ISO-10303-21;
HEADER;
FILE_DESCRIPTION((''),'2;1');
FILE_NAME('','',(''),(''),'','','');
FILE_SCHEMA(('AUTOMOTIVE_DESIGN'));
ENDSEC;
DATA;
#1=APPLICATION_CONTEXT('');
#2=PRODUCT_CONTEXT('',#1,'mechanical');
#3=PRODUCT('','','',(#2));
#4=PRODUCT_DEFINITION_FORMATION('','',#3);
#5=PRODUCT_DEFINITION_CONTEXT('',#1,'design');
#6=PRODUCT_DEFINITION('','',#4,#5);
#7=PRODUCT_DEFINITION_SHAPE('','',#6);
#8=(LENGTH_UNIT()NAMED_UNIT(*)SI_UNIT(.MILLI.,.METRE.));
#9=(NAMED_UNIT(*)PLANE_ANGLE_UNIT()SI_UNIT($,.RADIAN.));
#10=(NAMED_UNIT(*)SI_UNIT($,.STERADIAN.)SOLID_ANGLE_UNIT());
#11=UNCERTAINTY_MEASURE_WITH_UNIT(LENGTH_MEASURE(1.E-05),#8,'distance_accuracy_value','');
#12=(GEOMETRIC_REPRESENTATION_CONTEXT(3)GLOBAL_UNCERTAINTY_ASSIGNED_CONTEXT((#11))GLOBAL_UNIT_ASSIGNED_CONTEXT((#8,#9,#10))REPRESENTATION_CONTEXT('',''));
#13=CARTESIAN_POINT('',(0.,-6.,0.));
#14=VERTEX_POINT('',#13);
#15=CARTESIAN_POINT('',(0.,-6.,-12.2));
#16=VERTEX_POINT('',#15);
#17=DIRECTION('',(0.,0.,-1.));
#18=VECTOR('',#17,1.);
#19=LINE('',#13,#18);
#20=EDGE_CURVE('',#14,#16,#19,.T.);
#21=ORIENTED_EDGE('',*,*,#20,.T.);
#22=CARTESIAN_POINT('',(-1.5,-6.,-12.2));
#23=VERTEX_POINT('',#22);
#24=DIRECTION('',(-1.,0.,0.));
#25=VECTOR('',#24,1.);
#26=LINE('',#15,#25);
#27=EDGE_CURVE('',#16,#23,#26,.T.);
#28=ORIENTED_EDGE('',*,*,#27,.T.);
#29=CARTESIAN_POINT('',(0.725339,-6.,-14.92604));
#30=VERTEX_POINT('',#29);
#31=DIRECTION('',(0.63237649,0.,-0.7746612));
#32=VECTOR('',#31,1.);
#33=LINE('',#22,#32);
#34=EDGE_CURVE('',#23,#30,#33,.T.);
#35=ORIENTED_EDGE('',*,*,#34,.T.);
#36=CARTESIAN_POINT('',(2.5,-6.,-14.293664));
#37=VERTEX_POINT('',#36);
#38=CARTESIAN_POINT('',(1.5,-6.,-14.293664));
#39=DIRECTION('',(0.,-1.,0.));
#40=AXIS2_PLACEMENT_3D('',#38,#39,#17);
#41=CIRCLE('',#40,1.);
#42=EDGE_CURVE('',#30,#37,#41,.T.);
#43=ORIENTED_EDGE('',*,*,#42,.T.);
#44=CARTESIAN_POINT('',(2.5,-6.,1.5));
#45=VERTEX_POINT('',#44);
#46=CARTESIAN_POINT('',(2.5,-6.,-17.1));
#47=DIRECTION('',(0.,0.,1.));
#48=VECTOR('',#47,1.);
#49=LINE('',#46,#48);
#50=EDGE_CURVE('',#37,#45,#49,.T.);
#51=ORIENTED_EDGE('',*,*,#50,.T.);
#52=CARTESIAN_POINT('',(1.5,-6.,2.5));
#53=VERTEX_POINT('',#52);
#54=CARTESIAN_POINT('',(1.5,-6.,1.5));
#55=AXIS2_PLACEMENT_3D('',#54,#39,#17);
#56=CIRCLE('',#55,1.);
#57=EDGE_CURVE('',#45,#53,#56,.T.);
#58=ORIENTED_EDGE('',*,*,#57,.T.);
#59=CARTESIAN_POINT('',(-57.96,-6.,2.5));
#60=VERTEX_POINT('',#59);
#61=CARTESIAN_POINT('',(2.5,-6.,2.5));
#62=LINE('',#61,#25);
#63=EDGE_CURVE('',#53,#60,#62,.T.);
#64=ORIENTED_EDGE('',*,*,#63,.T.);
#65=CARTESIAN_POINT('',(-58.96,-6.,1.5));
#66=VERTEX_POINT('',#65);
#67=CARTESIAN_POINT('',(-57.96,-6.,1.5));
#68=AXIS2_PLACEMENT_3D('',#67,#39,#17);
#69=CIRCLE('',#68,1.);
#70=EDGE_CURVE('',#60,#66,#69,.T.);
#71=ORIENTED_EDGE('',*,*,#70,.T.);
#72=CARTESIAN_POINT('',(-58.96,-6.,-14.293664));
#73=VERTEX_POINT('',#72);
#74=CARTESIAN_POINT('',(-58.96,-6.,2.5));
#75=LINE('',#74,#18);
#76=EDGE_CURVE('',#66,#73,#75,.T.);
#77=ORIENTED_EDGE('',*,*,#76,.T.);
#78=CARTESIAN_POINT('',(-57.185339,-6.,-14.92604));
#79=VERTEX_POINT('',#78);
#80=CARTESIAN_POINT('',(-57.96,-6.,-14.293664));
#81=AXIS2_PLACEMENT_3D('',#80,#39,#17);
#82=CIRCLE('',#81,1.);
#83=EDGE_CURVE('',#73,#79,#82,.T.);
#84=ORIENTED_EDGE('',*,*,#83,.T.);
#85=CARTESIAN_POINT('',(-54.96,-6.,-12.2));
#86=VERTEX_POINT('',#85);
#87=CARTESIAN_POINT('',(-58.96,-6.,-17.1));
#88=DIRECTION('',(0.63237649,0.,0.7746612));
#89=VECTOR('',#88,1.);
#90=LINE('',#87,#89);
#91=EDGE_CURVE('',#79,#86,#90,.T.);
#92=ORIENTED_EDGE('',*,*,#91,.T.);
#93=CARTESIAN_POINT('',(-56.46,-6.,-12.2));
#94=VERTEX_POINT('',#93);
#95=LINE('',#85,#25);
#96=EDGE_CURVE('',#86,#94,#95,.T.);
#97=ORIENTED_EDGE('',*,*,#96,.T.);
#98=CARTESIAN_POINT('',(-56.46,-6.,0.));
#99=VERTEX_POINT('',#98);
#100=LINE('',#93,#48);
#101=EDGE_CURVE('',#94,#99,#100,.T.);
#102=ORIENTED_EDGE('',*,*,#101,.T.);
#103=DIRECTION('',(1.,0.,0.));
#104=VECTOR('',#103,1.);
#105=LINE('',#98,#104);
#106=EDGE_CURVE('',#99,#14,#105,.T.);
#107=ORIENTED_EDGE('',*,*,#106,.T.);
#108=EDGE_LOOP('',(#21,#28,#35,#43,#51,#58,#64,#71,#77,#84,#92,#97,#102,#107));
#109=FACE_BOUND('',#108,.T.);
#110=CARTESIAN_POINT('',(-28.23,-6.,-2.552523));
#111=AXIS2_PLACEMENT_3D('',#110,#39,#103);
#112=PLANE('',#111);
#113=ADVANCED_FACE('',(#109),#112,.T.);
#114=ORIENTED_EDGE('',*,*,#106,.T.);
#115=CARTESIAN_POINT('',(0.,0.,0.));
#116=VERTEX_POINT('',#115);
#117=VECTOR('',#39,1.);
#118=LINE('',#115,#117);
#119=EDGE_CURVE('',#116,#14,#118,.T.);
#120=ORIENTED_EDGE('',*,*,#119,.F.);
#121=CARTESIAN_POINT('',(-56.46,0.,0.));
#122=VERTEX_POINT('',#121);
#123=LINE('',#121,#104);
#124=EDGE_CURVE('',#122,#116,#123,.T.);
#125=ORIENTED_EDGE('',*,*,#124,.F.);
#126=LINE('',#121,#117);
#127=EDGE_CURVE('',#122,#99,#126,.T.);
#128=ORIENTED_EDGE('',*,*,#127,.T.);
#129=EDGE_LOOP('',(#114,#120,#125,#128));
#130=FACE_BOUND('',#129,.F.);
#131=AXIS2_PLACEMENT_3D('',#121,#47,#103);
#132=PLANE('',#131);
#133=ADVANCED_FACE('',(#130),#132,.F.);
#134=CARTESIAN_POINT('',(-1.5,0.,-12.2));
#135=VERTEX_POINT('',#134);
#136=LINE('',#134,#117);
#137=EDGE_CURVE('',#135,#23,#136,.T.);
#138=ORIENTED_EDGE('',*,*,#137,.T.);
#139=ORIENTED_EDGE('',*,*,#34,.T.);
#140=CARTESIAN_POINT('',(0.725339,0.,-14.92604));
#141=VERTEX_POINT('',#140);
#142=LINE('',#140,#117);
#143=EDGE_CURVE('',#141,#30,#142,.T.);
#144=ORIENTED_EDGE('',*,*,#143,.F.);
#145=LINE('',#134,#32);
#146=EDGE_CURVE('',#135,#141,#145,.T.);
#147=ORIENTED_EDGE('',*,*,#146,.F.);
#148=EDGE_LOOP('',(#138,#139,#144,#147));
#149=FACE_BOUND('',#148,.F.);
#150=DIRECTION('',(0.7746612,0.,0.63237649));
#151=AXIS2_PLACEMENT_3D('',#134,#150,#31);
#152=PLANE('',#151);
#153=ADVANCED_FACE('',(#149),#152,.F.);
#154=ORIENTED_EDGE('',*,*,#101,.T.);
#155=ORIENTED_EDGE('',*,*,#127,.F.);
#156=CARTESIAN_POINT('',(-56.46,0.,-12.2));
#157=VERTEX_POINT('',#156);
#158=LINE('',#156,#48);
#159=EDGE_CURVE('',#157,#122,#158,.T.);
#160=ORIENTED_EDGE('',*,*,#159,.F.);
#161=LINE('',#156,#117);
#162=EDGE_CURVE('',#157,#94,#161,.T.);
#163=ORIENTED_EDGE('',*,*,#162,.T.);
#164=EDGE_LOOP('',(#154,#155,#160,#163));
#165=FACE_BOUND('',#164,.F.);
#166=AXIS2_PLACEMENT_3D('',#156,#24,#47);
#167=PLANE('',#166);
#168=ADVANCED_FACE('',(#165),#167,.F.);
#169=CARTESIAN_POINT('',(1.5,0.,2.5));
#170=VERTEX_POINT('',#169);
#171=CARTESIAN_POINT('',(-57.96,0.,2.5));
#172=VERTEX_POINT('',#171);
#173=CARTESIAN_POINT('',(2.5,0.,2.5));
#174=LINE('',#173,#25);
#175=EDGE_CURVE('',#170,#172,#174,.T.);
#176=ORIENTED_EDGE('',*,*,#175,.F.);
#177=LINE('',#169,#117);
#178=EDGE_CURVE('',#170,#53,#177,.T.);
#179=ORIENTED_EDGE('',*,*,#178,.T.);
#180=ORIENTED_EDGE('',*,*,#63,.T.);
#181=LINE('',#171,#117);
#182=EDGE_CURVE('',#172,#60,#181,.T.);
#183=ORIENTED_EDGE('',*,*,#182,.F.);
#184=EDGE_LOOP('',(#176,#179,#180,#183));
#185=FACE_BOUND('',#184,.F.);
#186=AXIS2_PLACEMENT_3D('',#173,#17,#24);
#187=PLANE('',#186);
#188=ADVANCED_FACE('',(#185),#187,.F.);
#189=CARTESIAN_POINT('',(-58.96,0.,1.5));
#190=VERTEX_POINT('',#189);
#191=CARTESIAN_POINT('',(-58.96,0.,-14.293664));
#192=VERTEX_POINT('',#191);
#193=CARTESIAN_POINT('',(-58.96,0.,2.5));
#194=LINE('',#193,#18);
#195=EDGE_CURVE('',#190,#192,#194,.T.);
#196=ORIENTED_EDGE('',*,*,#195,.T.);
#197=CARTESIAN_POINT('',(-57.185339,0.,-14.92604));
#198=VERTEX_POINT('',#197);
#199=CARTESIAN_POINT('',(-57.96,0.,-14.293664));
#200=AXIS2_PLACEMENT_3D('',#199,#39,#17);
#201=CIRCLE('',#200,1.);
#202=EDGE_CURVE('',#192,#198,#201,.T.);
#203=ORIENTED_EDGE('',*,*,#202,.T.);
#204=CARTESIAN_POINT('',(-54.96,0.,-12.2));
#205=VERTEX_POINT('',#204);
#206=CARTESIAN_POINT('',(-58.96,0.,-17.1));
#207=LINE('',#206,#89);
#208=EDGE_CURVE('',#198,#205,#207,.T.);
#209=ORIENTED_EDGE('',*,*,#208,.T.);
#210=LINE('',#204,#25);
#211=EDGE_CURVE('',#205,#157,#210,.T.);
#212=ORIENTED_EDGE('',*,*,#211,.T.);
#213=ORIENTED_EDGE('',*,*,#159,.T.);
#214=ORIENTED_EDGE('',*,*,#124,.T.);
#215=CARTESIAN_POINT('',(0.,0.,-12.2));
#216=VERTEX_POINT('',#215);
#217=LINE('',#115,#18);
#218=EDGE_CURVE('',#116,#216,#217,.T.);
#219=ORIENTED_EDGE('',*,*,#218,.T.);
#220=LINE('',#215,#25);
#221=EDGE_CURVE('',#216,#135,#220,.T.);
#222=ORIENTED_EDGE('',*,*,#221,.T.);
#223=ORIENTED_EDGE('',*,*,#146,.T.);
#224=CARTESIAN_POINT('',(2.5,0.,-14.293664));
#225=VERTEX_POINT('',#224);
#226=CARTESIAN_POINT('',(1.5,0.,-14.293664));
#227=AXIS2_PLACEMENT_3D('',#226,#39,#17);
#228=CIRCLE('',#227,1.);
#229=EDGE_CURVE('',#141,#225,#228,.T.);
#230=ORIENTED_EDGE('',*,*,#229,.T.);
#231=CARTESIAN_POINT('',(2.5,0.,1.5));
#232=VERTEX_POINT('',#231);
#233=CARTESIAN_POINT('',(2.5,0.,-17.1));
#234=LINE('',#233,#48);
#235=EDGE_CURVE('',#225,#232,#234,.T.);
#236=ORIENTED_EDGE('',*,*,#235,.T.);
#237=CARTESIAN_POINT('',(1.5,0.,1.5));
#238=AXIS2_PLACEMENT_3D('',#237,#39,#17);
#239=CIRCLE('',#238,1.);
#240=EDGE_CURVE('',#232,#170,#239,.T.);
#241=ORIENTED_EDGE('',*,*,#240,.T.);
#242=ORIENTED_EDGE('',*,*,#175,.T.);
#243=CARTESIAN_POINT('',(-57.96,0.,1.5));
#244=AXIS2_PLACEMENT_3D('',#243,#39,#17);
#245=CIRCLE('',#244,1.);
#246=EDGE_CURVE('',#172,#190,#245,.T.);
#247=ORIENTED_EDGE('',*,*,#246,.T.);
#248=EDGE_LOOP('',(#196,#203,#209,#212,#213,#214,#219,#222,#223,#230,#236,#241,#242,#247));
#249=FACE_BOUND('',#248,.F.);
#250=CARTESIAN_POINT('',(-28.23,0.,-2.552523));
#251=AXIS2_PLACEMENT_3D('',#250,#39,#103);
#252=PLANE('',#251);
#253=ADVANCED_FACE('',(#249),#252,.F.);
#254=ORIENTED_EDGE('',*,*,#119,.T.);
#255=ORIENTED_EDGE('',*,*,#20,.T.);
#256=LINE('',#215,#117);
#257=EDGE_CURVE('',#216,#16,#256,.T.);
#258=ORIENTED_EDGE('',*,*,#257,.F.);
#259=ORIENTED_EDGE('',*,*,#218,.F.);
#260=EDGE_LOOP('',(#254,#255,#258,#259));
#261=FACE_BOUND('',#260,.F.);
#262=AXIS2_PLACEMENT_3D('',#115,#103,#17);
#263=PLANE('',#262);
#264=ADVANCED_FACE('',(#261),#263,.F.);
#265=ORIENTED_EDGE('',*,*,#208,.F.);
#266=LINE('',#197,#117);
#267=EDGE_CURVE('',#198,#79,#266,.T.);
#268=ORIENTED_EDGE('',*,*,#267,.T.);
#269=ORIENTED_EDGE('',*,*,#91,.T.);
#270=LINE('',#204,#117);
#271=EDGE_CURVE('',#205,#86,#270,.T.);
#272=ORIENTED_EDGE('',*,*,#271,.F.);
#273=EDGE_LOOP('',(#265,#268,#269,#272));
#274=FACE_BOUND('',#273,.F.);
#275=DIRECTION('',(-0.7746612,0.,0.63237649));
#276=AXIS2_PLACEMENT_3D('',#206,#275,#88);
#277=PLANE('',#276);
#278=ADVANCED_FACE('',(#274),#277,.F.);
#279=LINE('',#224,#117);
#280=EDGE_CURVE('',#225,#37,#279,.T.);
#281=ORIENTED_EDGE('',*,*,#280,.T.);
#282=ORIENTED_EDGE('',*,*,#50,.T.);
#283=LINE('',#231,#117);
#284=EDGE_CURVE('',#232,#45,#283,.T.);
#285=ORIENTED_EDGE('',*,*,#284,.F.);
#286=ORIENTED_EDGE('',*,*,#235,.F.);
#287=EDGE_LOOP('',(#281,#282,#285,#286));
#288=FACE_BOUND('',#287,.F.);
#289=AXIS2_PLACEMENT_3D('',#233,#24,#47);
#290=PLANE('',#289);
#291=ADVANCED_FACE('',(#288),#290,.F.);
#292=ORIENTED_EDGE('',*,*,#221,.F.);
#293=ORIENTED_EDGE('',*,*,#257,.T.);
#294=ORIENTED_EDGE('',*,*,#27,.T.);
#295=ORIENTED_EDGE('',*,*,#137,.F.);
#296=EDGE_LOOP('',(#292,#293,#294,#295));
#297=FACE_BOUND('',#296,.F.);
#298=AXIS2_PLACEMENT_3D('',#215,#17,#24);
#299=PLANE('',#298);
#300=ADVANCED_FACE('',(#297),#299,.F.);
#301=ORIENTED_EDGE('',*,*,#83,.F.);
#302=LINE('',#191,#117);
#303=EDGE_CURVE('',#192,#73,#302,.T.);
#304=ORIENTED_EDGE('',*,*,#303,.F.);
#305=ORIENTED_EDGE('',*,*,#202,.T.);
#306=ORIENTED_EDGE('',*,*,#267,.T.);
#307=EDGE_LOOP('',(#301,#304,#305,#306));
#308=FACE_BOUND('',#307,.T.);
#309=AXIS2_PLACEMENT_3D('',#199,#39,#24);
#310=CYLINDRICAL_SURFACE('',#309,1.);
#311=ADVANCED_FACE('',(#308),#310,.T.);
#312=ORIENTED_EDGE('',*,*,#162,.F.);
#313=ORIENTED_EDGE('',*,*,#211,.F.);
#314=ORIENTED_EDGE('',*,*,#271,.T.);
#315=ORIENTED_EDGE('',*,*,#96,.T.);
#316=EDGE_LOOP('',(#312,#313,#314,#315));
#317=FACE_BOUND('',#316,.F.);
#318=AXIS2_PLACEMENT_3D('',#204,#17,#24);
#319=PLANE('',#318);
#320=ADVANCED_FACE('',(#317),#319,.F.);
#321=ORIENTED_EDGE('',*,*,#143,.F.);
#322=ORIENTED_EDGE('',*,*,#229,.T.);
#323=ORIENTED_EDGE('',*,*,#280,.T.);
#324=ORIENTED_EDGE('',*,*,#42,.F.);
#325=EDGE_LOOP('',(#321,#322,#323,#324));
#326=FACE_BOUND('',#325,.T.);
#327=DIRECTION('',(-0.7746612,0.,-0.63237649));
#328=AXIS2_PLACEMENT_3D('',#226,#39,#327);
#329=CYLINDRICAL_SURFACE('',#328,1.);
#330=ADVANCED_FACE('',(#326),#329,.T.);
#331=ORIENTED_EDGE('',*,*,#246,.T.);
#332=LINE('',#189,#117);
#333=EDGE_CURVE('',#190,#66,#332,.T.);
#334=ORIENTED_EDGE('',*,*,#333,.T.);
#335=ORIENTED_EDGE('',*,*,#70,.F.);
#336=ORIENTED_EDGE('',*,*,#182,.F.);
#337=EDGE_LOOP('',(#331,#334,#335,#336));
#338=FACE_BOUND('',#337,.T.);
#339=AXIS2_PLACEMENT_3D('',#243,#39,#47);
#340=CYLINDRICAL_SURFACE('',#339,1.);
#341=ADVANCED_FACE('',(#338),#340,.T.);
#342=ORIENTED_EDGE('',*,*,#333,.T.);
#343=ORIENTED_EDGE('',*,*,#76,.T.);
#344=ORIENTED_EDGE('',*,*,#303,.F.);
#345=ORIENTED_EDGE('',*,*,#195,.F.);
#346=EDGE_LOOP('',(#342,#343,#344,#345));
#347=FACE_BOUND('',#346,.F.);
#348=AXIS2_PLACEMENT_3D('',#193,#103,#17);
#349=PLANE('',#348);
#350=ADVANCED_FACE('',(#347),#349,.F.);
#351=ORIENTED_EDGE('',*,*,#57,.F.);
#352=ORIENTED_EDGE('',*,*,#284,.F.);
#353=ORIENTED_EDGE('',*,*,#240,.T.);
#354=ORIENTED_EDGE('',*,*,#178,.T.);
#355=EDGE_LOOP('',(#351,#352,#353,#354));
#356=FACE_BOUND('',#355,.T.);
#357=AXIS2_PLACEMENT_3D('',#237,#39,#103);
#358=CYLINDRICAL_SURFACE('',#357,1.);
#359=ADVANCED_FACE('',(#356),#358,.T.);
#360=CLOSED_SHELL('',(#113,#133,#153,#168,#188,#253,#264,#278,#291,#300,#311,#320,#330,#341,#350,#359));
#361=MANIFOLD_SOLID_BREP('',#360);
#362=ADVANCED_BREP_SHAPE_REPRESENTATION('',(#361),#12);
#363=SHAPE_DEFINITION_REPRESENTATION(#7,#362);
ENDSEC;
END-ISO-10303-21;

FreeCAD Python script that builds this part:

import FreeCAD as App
import Part
import Sketcher
from FreeCAD import Vector


def edges_at(feature, points):
    """Names of the edges that pass closest to the given points."""
    edges = feature.Shape.Edges
    near = lambda p: min(range(len(edges)), key=lambda i: edges[i].distToShape(Part.Vertex(*p))[0])
    return sorted({f"Edge{near(p) + 1}" for p in points})

doc = App.newDocument("Part")
body = doc.addObject("PartDesign::Body", "Body")

sketch1 = body.newObject("Sketcher::SketchObject", "Sketch")
sketch1.AttachmentSupport = (doc.getObject("XZ_Plane"), [""])
sketch1.MapMode = "FlatFace"
sketch1.addGeometry(Part.LineSegment(Vector(0, 0, 0), Vector(0, -12.2, 0)), False)
sketch1.addGeometry(Part.LineSegment(Vector(0, -12.2, 0), Vector(-1.5, -12.2, 0)), False)
sketch1.addGeometry(Part.LineSegment(Vector(-1.5, -12.2, 0), Vector(2.5, -17.1, 0)), False)
sketch1.addGeometry(Part.LineSegment(Vector(2.5, -17.1, 0), Vector(2.5, 2.5, 0)), False)
sketch1.addGeometry(Part.LineSegment(Vector(2.5, 2.5, 0), Vector(-59, 2.5, 0)), False)
sketch1.addGeometry(Part.LineSegment(Vector(-59, 2.5, 0), Vector(-59, -17.1, 0)), False)
sketch1.addGeometry(Part.LineSegment(Vector(-59, -17.1, 0), Vector(-55, -12.2, 0)), False)
sketch1.addGeometry(Part.LineSegment(Vector(-55, -12.2, 0), Vector(-56.5, -12.2, 0)), False)
sketch1.addGeometry(Part.LineSegment(Vector(-56.5, -12.2, 0), Vector(-56.5, 0, 0)), False)
sketch1.addGeometry(Part.LineSegment(Vector(-56.5, 0, 0), Vector(0, 0, 0)), False)
sketch1.addConstraint(Sketcher.Constraint("Coincident", 0, 2, 1, 1))
sketch1.addConstraint(Sketcher.Constraint("Coincident", 1, 2, 2, 1))
sketch1.addConstraint(Sketcher.Constraint("Coincident", 2, 2, 3, 1))
sketch1.addConstraint(Sketcher.Constraint("Coincident", 3, 2, 4, 1))
sketch1.addConstraint(Sketcher.Constraint("Coincident", 4, 2, 5, 1))
sketch1.addConstraint(Sketcher.Constraint("Coincident", 5, 2, 6, 1))
sketch1.addConstraint(Sketcher.Constraint("Coincident", 6, 2, 7, 1))
sketch1.addConstraint(Sketcher.Constraint("Coincident", 7, 2, 8, 1))
sketch1.addConstraint(Sketcher.Constraint("Coincident", 8, 2, 9, 1))
sketch1.addConstraint(Sketcher.Constraint("Coincident", 9, 2, 0, 1))
sketch1.addConstraint(Sketcher.Constraint("Vertical", 0))
sketch1.addConstraint(Sketcher.Constraint("Horizontal", 1))
sketch1.addConstraint(Sketcher.Constraint("Vertical", 3))
sketch1.addConstraint(Sketcher.Constraint("Horizontal", 4))
sketch1.addConstraint(Sketcher.Constraint("Vertical", 5))
sketch1.addConstraint(Sketcher.Constraint("Horizontal", 7))
sketch1.addConstraint(Sketcher.Constraint("Vertical", 8))
sketch1.addConstraint(Sketcher.Constraint("Horizontal", 9))
sketch1.addConstraint(Sketcher.Constraint("Coincident", 9, 2, -1, 1))
sketch1.addConstraint(Sketcher.Constraint("Horizontal", 2, 2, 5, 2))
sketch1.addConstraint(Sketcher.Constraint("Horizontal", 1, 2, 6, 2))
sketch1.addConstraint(Sketcher.Constraint("Equal", 1, 7))
sketch1.addConstraint(Sketcher.Constraint("Equal", 2, 6))
sketch1.addConstraint(Sketcher.Constraint("DistanceX", 1, 2, 1, 1, 1.5))
sketch1.addConstraint(Sketcher.Constraint("DistanceY", 0, 2, 0, 1, 12.2))
sketch1.addConstraint(Sketcher.Constraint("DistanceY", 3, 1, 3, 2, 19.6))
sketch1.addConstraint(Sketcher.Constraint("DistanceX", 1, 2, 2, 2, 4.0))
sketch1.addConstraint(Sketcher.Constraint("DistanceX", 4, 2, 4, 1, 61.46))
sketch1.addConstraint(Sketcher.Constraint("DistanceY", 2, 2, -1, 1, 17.1))
pad1 = body.newObject("PartDesign::Pad", "Pad")
pad1.Profile = sketch1
pad1.Length = 6
doc.recompute()

fillet = body.newObject("PartDesign::Fillet", "Fillet")
fillet.Base = (pad1, edges_at(pad1, [
    (-58.96, -3, -17.1),
    (2.5, -3, -17.1),
    (-58.96, -3, 2.5),
    (2.5, -3, 2.5),
]))
fillet.Radius = 1

doc.recompute()
